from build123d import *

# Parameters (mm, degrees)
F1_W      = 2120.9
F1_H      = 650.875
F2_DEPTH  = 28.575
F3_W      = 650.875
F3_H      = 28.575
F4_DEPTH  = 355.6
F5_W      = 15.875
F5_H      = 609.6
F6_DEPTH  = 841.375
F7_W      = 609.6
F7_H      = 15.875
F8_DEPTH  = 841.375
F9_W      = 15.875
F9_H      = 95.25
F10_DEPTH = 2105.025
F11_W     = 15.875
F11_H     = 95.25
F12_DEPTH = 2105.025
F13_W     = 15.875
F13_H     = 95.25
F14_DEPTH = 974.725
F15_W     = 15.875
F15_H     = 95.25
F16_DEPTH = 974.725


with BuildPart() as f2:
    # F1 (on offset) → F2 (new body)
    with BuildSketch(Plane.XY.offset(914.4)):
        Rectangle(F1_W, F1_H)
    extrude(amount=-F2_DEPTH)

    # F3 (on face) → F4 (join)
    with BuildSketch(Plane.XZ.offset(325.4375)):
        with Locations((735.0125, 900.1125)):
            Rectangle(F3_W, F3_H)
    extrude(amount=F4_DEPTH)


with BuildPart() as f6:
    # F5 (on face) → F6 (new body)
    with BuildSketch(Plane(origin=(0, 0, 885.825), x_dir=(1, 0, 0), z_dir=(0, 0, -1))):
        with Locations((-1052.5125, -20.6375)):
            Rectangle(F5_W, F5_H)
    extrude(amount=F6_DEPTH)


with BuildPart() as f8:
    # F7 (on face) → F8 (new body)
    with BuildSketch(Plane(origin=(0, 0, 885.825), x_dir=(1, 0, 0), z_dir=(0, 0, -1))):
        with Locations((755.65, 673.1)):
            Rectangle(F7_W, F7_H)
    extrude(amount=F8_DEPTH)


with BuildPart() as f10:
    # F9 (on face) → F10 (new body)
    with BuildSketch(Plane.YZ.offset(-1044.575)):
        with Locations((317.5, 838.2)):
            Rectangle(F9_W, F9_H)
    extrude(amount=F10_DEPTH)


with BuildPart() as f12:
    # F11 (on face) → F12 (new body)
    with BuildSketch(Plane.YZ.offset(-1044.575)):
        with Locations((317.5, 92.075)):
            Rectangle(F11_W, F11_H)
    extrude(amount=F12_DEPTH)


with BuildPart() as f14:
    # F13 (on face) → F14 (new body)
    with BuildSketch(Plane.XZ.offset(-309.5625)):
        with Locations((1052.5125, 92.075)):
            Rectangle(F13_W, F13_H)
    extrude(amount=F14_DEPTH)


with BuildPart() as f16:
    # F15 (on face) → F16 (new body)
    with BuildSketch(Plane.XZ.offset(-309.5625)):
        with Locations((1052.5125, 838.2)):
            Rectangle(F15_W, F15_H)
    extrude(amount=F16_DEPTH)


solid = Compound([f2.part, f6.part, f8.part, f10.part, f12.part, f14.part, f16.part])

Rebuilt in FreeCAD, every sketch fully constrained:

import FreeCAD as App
import Part
import Sketcher
from FreeCAD import Vector
Q = App.Units.Quantity


def add_polygon(sketch, points):
    """Adds a closed chain of lines whose ends are joined by coincident constraints."""
    first, n = sketch.GeometryCount, len(points)
    for a, b in zip(points, points[1:] + points[:1]):
        sketch.addGeometry(Part.LineSegment(App.Vector(*a, 0), App.Vector(*b, 0)), False)
    for i in range(n):
        sketch.addConstraint(Sketcher.Constraint("Coincident", first + i, 2, first + (i + 1) % n, 1))

doc = App.newDocument("Part")
body = doc.addObject("PartDesign::Body", "Body")

# Sketch on XY plane
sketch1 = body.newObject("Sketcher::SketchObject", "Sketch")
sketch1.AttachmentSupport = (doc.getObject("XY_Plane"), [""])
sketch1.MapMode = "FlatFace"
sketch1.AttachmentOffset = App.Placement(Vector(0, 0, 36 * 25.4), App.Rotation())
add_polygon(sketch1, [(-1060, 325), (-1060, -325), (1060, -325), (1060, 325)])  # lines 0-3
sketch1.addConstraint([
    Sketcher.Constraint("Vertical", 0),
    Sketcher.Constraint("Horizontal", 1),
    Sketcher.Constraint("Vertical", 2),
    Sketcher.Constraint("Horizontal", 3),
    Sketcher.Constraint("Symmetric", 0, 2, 2, 2, -1, 1),
    Sketcher.Constraint("DistanceX", 1, 1, 1, 2, Q("83.5 in")),
    Sketcher.Constraint("DistanceY", 0, 2, 0, 1, Q("25.625 in")),
])
pad1 = body.newObject("PartDesign::Pad", "Pad")
pad1.Profile = sketch1
pad1.Length = Q("1.125 in")
pad1.Reversed = True

# Sketch on XZ plane
sketch2 = body.newObject("Sketcher::SketchObject", "Sketch001")
sketch2.AttachmentSupport = (doc.getObject("XZ_Plane"), [""])
sketch2.MapMode = "FlatFace"
sketch2.AttachmentOffset = App.Placement(Vector(0, 0, 12.8125 * 25.4), App.Rotation())
add_polygon(sketch2, [(410, 914), (410, 886), (1060, 886), (1060, 914)])  # lines 0-3
sketch2.addConstraint([
    Sketcher.Constraint("Vertical", 0),
    Sketcher.Constraint("Horizontal", 1),
    Sketcher.Constraint("Vertical", 2),
    Sketcher.Constraint("Horizontal", 3),
    Sketcher.Constraint("DistanceY", -1, 1, 2, 2, Q("36 in")),
    Sketcher.Constraint("DistanceX", 1, 1, 1, 2, Q("25.625 in")),
    Sketcher.Constraint("DistanceY", 0, 2, 0, 1, Q("1.125 in")),
    Sketcher.Constraint("DistanceX", -1, 1, 1, 2, Q("41.75 in")),
])
pad2 = body.newObject("PartDesign::Pad", "Pad001")
pad2.Profile = sketch2
pad2.Length = Q("14 in")
body2 = doc.addObject("PartDesign::Body", "Body001")

# Sketch on XY plane
sketch3 = body2.newObject("Sketcher::SketchObject", "Sketch002")
sketch3.AttachmentSupport = (doc.getObject("XY_Plane001"), [""])
sketch3.MapMode = "FlatFace"
sketch3.AttachmentOffset = App.Placement(Vector(0, 0, 34.875 * 25.4), App.Rotation())
add_polygon(sketch3, [(-1060, -284), (-1060, 325), (-1045, 325), (-1045, -284)])  # lines 0-3
sketch3.addConstraint([
    Sketcher.Constraint("Vertical", 0),
    Sketcher.Constraint("Horizontal", 1),
    Sketcher.Constraint("Vertical", 2),
    Sketcher.Constraint("Horizontal", 3),
    Sketcher.Constraint("DistanceY", 0, 1, 0, 2, Q("24 in")),
    Sketcher.Constraint("DistanceX", 1, 1, 1, 2, Q("0.625 in")),
    Sketcher.Constraint("DistanceX", 0, 2, -1, 1, Q("41.75 in")),
    Sketcher.Constraint("DistanceY", -1, 1, 0, 2, Q("12.8125 in")),
])
pad3 = body2.newObject("PartDesign::Pad", "Pad002")
pad3.Profile = sketch3
pad3.Length = Q("33.125 in")
pad3.Reversed = True
body3 = doc.addObject("PartDesign::Body", "Body002")

# Sketch on XY plane
sketch4 = body3.newObject("Sketcher::SketchObject", "Sketch003")
sketch4.AttachmentSupport = (doc.getObject("XY_Plane002"), [""])
sketch4.MapMode = "FlatFace"
sketch4.AttachmentOffset = App.Placement(Vector(0, 0, 34.875 * 25.4), App.Rotation())
add_polygon(sketch4, [(451, -681), (451, -665), (1060, -665), (1060, -681)])  # lines 0-3
sketch4.addConstraint([
    Sketcher.Constraint("Vertical", 0),
    Sketcher.Constraint("Horizontal", 1),
    Sketcher.Constraint("Vertical", 2),
    Sketcher.Constraint("Horizontal", 3),
    Sketcher.Constraint("DistanceX", 1, 1, 1, 2, Q("24 in")),
    Sketcher.Constraint("DistanceY", 0, 1, 0, 2, Q("0.625 in")),
    Sketcher.Constraint("DistanceX", -1, 1, 0, 2, Q("17.75 in")),
    Sketcher.Constraint("DistanceY", 0, 2, -1, 1, Q("26.1875 in")),
])
pad4 = body3.newObject("PartDesign::Pad", "Pad003")
pad4.Profile = sketch4
pad4.Length = Q("33.125 in")
pad4.Reversed = True
body4 = doc.addObject("PartDesign::Body", "Body003")

# Sketch on YZ plane
sketch5 = body4.newObject("Sketcher::SketchObject", "Sketch004")
sketch5.AttachmentSupport = (doc.getObject("YZ_Plane003"), [""])
sketch5.MapMode = "FlatFace"
sketch5.AttachmentOffset = App.Placement(Vector(0, 0, -41.125 * 25.4), App.Rotation())
add_polygon(sketch5, [(310, 886), (310, 791), (325, 791), (325, 886)])  # lines 0-3
sketch5.addConstraint([
    Sketcher.Constraint("Vertical", 0),
    Sketcher.Constraint("Horizontal", 1),
    Sketcher.Constraint("Vertical", 2),
    Sketcher.Constraint("Horizontal", 3),
    Sketcher.Constraint("DistanceY", 0, 2, 0, 1, Q("3.75 in")),
    Sketcher.Constraint("DistanceX", 1, 1, 1, 2, Q("0.625 in")),
    Sketcher.Constraint("DistanceX", -1, 1, 0, 2, Q("12.1875 in")),
    Sketcher.Constraint("DistanceY", -1, 1, 0, 2, Q("31.125 in")),
])
pad5 = body4.newObject("PartDesign::Pad", "Pad004")
pad5.Profile = sketch5
pad5.Length = Q("82.875 in")
body5 = doc.addObject("PartDesign::Body", "Body004")

# Sketch on YZ plane
sketch6 = body5.newObject("Sketcher::SketchObject", "Sketch005")
sketch6.AttachmentSupport = (doc.getObject("YZ_Plane004"), [""])
sketch6.MapMode = "FlatFace"
sketch6.AttachmentOffset = App.Placement(Vector(0, 0, -41.125 * 25.4), App.Rotation())
add_polygon(sketch6, [(310, 140), (310, 44), (325, 44), (325, 140)])  # lines 0-3
sketch6.addConstraint([
    Sketcher.Constraint("Vertical", 0),
    Sketcher.Constraint("Horizontal", 1),
    Sketcher.Constraint("Vertical", 2),
    Sketcher.Constraint("Horizontal", 3),
    Sketcher.Constraint("DistanceY", 0, 2, 0, 1, Q("3.75 in")),
    Sketcher.Constraint("DistanceY", -1, 1, 2, 2, Q("5.5 in")),
    Sketcher.Constraint("DistanceX", 1, 1, 1, 2, Q("0.625 in")),
    Sketcher.Constraint("DistanceX", -1, 1, 0, 2, Q("12.1875 in")),
])
pad6 = body5.newObject("PartDesign::Pad", "Pad005")
pad6.Profile = sketch6
pad6.Length = Q("82.875 in")
body6 = doc.addObject("PartDesign::Body", "Body005")

# Sketch on XZ plane
sketch7 = body6.newObject("Sketcher::SketchObject", "Sketch006")
sketch7.AttachmentSupport = (doc.getObject("XZ_Plane005"), [""])
sketch7.MapMode = "FlatFace"
sketch7.AttachmentOffset = App.Placement(Vector(0, 0, -12.1875 * 25.4), App.Rotation())
add_polygon(sketch7, [(1045, 140), (1045, 44), (1060, 44), (1060, 140)])  # lines 0-3
sketch7.addConstraint([
    Sketcher.Constraint("Vertical", 0),
    Sketcher.Constraint("Horizontal", 1),
    Sketcher.Constraint("Vertical", 2),
    Sketcher.Constraint("Horizontal", 3),
    Sketcher.Constraint("DistanceY", 0, 2, 0, 1, Q("3.75 in")),
    Sketcher.Constraint("DistanceY", -1, 1, 2, 2, Q("5.5 in")),
    Sketcher.Constraint("DistanceX", 1, 1, 1, 2, Q("0.625 in")),
    Sketcher.Constraint("DistanceX", -1, 1, 1, 2, Q("41.75 in")),
])
pad7 = body6.newObject("PartDesign::Pad", "Pad006")
pad7.Profile = sketch7
pad7.Length = Q("38.375 in")
body7 = doc.addObject("PartDesign::Body", "Body006")

# Sketch on XZ plane
sketch8 = body7.newObject("Sketcher::SketchObject", "Sketch007")
sketch8.AttachmentSupport = (doc.getObject("XZ_Plane006"), [""])
sketch8.MapMode = "FlatFace"
sketch8.AttachmentOffset = App.Placement(Vector(0, 0, -12.1875 * 25.4), App.Rotation())
add_polygon(sketch8, [(1045, 886), (1045, 791), (1060, 791), (1060, 886)])  # lines 0-3
sketch8.addConstraint([
    Sketcher.Constraint("Vertical", 0),
    Sketcher.Constraint("Horizontal", 1),
    Sketcher.Constraint("Vertical", 2),
    Sketcher.Constraint("Horizontal", 3),
    Sketcher.Constraint("DistanceY", 0, 2, 0, 1, Q("3.75 in")),
    Sketcher.Constraint("DistanceX", 1, 1, 1, 2, Q("0.625 in")),
    Sketcher.Constraint("DistanceX", -1, 1, 1, 2, Q("41.75 in")),
    Sketcher.Constraint("DistanceY", -1, 1, 0, 2, Q("31.125 in")),
])
pad8 = body7.newObject("PartDesign::Pad", "Pad007")
pad8.Profile = sketch8
pad8.Length = Q("38.375 in")

doc.recompute()
